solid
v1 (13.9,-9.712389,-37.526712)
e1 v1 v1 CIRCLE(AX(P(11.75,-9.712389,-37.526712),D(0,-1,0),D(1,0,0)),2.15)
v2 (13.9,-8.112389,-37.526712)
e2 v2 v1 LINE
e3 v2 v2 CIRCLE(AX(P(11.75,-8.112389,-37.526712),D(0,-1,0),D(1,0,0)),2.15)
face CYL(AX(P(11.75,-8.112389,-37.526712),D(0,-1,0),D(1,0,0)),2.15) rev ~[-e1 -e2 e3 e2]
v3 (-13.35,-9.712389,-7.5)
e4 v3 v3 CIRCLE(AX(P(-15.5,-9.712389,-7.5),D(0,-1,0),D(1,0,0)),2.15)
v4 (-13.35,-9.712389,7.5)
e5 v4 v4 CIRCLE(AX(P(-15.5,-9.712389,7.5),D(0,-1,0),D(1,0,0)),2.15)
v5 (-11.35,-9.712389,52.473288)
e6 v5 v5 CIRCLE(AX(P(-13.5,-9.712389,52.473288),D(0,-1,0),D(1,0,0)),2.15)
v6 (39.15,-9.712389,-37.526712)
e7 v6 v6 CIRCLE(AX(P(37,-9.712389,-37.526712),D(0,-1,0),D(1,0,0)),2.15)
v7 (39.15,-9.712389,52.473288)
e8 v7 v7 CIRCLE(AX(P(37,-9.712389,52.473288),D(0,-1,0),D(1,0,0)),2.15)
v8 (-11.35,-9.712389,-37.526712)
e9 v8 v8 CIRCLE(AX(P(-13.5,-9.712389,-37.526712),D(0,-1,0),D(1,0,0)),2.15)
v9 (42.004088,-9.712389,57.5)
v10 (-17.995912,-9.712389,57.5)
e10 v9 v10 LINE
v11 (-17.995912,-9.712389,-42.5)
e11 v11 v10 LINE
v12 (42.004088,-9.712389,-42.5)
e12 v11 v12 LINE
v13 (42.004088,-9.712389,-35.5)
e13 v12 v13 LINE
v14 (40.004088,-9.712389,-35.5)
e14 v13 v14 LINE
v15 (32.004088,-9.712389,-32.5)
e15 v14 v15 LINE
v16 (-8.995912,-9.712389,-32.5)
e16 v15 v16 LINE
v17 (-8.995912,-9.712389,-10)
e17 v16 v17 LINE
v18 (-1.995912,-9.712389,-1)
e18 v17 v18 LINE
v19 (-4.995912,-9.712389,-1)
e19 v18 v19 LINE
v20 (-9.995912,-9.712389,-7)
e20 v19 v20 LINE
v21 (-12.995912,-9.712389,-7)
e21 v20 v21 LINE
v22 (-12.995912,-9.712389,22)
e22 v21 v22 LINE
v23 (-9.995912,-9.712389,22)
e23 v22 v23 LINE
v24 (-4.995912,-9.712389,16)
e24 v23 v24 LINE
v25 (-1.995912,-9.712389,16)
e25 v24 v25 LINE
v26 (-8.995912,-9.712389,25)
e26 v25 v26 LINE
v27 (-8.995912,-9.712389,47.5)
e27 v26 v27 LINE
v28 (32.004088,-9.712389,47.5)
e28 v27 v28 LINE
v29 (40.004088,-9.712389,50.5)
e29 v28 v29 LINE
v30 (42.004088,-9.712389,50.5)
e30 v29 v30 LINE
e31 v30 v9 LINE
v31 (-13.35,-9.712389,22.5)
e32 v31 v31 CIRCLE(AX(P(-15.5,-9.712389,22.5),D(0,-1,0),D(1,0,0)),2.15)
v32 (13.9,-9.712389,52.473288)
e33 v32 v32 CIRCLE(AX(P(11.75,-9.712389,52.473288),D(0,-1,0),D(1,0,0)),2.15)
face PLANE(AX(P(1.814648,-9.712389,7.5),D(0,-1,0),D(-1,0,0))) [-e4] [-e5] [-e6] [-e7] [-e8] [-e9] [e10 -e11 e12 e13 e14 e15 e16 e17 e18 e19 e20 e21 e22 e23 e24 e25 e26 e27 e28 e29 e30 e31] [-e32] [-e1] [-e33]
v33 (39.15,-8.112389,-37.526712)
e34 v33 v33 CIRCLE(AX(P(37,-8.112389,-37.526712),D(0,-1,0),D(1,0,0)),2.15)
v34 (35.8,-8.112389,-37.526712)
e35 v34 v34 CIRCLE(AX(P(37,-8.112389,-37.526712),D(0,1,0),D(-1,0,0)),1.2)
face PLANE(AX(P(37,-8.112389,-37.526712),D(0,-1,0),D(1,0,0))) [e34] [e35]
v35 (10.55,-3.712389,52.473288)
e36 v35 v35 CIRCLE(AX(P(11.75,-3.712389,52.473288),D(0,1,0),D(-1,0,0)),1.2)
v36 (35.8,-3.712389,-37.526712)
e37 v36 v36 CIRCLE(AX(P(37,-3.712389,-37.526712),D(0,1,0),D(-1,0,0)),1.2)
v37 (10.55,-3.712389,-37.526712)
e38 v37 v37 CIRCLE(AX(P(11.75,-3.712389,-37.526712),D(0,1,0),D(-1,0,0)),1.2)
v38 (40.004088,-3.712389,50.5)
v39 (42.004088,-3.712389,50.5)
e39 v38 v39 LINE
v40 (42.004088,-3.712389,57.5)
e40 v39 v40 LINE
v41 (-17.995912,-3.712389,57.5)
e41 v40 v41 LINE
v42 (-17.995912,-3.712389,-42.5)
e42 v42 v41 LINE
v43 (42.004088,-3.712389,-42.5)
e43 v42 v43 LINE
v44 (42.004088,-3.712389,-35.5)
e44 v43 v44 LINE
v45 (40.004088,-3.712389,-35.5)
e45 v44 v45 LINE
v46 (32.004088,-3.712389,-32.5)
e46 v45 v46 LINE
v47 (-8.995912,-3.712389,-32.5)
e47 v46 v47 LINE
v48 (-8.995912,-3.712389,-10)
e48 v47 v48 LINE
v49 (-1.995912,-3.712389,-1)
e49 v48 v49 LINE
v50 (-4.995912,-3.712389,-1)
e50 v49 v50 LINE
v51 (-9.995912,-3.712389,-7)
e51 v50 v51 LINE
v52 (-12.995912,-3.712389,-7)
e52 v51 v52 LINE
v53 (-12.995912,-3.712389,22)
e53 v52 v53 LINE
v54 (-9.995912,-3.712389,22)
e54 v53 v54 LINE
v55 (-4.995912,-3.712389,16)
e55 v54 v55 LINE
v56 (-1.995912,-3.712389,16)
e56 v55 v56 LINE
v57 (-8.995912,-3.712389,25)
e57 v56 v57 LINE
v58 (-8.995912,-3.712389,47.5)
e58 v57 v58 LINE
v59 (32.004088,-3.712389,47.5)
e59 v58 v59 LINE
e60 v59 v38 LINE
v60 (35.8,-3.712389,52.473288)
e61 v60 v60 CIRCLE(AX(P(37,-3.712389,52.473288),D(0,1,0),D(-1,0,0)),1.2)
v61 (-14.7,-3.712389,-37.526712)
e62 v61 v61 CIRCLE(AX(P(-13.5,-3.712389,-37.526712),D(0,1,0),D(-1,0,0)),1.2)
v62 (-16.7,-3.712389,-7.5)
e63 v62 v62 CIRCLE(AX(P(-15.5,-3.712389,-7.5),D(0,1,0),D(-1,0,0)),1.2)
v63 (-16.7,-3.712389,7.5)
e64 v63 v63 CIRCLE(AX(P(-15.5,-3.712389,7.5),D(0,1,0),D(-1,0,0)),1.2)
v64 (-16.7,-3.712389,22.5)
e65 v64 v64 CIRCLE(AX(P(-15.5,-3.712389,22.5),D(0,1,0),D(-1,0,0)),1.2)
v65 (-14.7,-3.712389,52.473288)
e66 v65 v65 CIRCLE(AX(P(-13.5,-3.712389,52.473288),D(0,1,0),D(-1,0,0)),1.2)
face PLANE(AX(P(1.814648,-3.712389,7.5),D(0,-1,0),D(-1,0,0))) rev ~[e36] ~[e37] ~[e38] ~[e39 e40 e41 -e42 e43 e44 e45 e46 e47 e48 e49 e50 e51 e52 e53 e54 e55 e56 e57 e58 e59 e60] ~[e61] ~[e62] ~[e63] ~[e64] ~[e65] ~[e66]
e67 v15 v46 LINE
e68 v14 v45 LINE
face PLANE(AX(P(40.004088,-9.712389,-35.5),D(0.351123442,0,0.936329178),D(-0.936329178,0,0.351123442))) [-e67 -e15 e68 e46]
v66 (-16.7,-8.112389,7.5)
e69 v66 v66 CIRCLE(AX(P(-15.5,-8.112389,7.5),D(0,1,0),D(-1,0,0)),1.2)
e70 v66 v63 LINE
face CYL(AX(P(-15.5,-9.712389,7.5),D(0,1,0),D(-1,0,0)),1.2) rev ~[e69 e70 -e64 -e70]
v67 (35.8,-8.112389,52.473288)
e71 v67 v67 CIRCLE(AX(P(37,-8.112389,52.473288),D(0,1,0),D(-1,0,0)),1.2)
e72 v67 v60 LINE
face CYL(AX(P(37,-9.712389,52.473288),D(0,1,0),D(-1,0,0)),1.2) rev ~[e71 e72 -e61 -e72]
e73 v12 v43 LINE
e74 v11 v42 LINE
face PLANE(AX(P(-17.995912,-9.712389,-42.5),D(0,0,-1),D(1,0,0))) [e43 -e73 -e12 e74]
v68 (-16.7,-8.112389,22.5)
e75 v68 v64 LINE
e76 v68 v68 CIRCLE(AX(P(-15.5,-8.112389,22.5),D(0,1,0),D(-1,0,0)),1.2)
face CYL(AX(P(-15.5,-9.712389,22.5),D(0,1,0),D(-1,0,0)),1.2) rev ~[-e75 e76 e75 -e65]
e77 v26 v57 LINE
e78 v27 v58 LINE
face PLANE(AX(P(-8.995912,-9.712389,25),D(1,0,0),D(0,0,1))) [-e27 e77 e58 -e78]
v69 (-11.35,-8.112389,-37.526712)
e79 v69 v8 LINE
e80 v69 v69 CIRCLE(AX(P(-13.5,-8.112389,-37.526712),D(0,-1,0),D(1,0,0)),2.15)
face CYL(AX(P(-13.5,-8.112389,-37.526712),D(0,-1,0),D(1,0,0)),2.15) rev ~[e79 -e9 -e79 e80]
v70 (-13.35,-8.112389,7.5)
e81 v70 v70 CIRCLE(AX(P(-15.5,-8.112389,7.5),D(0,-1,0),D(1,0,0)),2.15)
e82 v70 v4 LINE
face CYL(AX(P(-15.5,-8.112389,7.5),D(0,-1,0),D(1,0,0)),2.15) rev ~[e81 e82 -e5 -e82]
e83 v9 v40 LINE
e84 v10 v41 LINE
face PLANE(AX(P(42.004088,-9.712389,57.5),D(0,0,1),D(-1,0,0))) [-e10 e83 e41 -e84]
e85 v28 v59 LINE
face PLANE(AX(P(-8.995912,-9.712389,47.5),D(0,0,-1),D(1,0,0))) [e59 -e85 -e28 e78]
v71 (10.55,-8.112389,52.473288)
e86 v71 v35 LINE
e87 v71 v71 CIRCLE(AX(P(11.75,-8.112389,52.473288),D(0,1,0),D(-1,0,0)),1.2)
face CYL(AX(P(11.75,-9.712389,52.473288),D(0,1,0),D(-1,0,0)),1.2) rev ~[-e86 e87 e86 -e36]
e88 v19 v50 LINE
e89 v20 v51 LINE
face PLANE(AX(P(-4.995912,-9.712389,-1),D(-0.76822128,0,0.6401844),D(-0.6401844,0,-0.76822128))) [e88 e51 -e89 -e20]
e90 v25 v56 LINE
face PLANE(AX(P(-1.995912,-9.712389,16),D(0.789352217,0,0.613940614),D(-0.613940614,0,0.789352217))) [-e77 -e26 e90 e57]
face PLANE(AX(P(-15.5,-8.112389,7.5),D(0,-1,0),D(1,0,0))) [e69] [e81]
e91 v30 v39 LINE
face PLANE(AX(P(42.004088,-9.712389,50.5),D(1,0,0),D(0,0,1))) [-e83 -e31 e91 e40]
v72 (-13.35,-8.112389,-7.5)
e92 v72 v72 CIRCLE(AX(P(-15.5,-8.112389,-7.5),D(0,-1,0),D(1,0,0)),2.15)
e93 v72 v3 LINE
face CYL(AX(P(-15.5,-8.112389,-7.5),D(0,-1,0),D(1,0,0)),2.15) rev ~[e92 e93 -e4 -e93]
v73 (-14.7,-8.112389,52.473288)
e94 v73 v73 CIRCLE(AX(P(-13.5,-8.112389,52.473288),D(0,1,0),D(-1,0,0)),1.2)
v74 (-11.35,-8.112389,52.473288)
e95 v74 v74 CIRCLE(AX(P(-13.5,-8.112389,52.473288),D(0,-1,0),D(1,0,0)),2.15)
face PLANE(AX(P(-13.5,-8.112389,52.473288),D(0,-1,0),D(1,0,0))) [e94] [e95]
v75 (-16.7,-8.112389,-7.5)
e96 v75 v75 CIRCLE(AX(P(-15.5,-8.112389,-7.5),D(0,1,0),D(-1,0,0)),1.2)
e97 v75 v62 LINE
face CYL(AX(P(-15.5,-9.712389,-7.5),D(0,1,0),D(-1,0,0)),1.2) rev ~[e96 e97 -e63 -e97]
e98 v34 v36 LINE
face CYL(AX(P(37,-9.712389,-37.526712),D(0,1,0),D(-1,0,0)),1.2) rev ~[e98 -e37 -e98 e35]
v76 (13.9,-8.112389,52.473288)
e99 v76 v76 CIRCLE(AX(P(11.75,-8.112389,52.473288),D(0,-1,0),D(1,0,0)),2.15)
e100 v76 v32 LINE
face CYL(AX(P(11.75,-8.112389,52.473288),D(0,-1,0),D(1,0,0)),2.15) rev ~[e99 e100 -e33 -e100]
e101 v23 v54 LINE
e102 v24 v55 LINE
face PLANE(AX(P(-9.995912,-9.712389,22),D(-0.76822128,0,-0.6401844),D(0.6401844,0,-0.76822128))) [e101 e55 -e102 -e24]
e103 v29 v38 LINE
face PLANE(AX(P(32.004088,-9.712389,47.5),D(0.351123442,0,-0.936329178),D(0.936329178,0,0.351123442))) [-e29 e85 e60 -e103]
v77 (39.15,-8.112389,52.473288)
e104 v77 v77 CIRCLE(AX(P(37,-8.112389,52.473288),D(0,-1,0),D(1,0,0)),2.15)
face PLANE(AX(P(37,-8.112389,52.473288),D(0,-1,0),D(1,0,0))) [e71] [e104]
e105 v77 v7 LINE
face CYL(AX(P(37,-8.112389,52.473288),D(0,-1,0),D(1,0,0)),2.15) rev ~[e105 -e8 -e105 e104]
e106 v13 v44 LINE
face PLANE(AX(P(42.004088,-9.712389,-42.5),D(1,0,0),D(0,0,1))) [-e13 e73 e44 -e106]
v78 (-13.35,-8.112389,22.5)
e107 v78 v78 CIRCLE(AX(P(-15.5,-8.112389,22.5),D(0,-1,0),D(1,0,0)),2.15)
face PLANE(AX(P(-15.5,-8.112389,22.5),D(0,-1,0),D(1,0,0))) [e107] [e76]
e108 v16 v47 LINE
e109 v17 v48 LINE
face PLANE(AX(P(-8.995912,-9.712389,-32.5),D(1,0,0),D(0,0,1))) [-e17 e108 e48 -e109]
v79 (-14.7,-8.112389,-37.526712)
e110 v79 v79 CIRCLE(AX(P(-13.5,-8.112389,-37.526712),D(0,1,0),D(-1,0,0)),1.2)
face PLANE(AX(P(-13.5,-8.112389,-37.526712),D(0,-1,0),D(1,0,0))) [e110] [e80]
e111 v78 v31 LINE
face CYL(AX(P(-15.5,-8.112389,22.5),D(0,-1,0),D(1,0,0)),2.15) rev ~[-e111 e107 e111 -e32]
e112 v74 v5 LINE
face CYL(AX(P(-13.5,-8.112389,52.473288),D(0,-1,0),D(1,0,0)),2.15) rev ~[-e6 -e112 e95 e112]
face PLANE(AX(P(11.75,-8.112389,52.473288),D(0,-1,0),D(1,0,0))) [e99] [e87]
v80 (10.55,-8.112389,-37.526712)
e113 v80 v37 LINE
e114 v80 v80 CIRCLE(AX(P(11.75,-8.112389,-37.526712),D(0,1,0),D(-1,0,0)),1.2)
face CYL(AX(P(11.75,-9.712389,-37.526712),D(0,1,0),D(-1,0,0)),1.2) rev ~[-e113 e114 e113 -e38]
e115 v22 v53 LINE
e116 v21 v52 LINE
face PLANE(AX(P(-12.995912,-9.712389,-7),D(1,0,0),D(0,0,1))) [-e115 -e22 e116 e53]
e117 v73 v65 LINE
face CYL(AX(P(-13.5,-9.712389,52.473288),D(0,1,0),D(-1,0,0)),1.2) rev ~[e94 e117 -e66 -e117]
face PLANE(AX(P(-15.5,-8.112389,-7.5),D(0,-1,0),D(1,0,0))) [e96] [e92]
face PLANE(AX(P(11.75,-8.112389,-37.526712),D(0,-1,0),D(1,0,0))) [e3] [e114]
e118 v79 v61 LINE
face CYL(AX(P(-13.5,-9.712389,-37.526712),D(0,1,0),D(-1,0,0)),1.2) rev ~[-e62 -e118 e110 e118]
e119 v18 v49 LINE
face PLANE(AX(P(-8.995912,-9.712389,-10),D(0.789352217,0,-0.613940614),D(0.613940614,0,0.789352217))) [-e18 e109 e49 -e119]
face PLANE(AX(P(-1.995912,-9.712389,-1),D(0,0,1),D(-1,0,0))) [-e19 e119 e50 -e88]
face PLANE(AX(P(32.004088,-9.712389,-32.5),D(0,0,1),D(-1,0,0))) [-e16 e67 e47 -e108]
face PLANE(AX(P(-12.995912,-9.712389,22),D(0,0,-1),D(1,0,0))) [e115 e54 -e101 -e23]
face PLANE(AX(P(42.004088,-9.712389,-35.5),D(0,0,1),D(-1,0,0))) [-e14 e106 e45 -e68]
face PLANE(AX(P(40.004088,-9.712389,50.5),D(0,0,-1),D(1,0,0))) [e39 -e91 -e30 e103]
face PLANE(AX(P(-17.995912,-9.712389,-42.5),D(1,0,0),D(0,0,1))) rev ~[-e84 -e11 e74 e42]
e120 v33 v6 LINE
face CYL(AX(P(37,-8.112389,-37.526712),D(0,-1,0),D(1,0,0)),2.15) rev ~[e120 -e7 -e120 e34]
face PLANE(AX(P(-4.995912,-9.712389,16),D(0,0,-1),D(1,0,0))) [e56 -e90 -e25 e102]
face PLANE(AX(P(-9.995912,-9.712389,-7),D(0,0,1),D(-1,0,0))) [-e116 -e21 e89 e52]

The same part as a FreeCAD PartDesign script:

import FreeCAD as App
import Part
import Sketcher
from FreeCAD import Vector


def add_polygon(sketch, points):
    """Adds a closed chain of lines whose ends are joined by coincident constraints."""
    first, n = sketch.GeometryCount, len(points)
    for a, b in zip(points, points[1:] + points[:1]):
        sketch.addGeometry(Part.LineSegment(App.Vector(*a, 0), App.Vector(*b, 0)), False)
    for i in range(n):
        sketch.addConstraint(Sketcher.Constraint("Coincident", first + i, 2, first + (i + 1) % n, 1))

doc = App.newDocument("Part")
params = doc.addObject("Spreadsheet::Sheet", "Params")
for row, (alias, value) in enumerate([
    ("sketch1_width", "3 mm"),
    ("sketch1_width2", "41 mm"),
    ("sketch1_width3", "2 mm"),
    ("sketch1_width4", "60 mm"),
    ("sketch1_height", "7 mm"),
    ("pad1_length", "6 mm"),
    ("sketch2_diameter", "2.4 mm"),
    ("hole_diameter", "2.4 mm"),
    ("hole_cbore_diameter", "4.3 mm"),
    ("hole_cbore_depth", "1.6 mm"),
    ("sketch3_diameter", "2.4 mm"),
    ("hole2_diameter", "2.4 mm"),
    ("hole2_cbore_diameter", "4.3 mm"),
    ("hole2_cbore_depth", "1.6 mm"),
], start=1):
    params.set(f"A{row}", alias)
    params.set(f"B{row}", "=" + value)
    params.setAlias(f"B{row}", alias)

body = doc.addObject("PartDesign::Body", "Body")

# Sketch on XZ plane
sketch1 = body.newObject("Sketcher::SketchObject", "Sketch")
sketch1.AttachmentSupport = (doc.getObject("XZ_Plane"), [""])
sketch1.MapMode = "FlatFace"
sketch1.AttachmentOffset = App.Placement(Vector(0, 0, 9.712389), App.Rotation())
add_polygon(sketch1, [(-10, -7), (-5, -1), (-2, -1), (-9, -10), (-9, -32.5), (32, -32.5), (40, -35.5), (42, -35.5), (42, -42.5), (-18, -42.5), (-18, 57.5), (42, 57.5), (42, 50.5), (40, 50.5), (32, 47.5), (-9, 47.5), (-9, 25), (-2, 16), (-5, 16), (-10, 22), (-13, 22), (-13, -7)])  # lines 0-21
sketch1.addConstraint([
    Sketcher.Constraint("Horizontal", 1),
    Sketcher.Constraint("Vertical", 3),
    Sketcher.Constraint("Horizontal", 4),
    Sketcher.Constraint("Horizontal", 6),
    Sketcher.Constraint("Vertical", 7),
    Sketcher.Constraint("Horizontal", 8),
    Sketcher.Constraint("Vertical", 9),
    Sketcher.Constraint("Horizontal", 10),
    Sketcher.Constraint("Vertical", 11),
    Sketcher.Constraint("Horizontal", 12),
    Sketcher.Constraint("Horizontal", 14),
    Sketcher.Constraint("Vertical", 15),
    Sketcher.Constraint("Horizontal", 17),
    Sketcher.Constraint("Horizontal", 19),
    Sketcher.Constraint("Vertical", 20),
    Sketcher.Constraint("Horizontal", 21),
    Sketcher.Constraint("Vertical", 7, 2, 10, 2),
    Sketcher.Constraint("Vertical", 5, 2, 12, 2),
    Sketcher.Constraint("Vertical", 4, 2, 13, 2),
    Sketcher.Constraint("Vertical", 3, 2, 14, 2),
    Sketcher.Constraint("Vertical", 1, 2, 16, 2),
    Sketcher.Constraint("Vertical", 0, 2, 17, 2),
    Sketcher.Constraint("Vertical", 18, 2, 21, 2),
    Sketcher.Constraint("Equal", 17, 19),
    Sketcher.Constraint("Equal", 7, 11),
    Sketcher.Constraint("Equal", 3, 15),
    Sketcher.Constraint("Equal", 5, 13),
    Sketcher.Constraint("Equal", 2, 16),
    Sketcher.Constraint("Equal", 0, 18),
    Sketcher.Constraint("DistanceX", 1, 1, 1, 2, 3.0),
    Sketcher.Constraint("DistanceX", 4, 1, 4, 2, 41.0),
    Sketcher.Constraint("DistanceX", 6, 1, 6, 2, 2.0),
    Sketcher.Constraint("DistanceX", 8, 2, 8, 1, 60.0),
    Sketcher.Constraint("DistanceY", 7, 2, 7, 1, 7.0),
    Sketcher.Constraint("DistanceY", 9, 1, 9, 2, 100.0),
    Sketcher.Constraint("DistanceY", 20, 2, 20, 1, 29.0),
    Sketcher.Constraint("DistanceY", 3, 2, 3, 1, 22.5),
    Sketcher.Constraint("DistanceY", 0, 2, -1, 1, 1.0),
    Sketcher.Constraint("DistanceY", 2, 2, -1, 1, 10.0),
    Sketcher.Constraint("DistanceY", -1, 1, 15, 2, 25.0),
    Sketcher.Constraint("DistanceX", 2, 2, 0, 2, 4.0),
    Sketcher.Constraint("DistanceX", 4, 2, 5, 2, 8.0),
    Sketcher.Constraint("DistanceX", 18, 2, 15, 2, 1.0),
    Sketcher.Constraint("DistanceX", 0, 2, -1, 1, 4.995912),
])
sketch1.setExpression("Constraints[51]", "Params.sketch1_width")
sketch1.setExpression("Constraints[52]", "Params.sketch1_width2")
sketch1.setExpression("Constraints[53]", "Params.sketch1_width3")
sketch1.setExpression("Constraints[54]", "Params.sketch1_width4")
sketch1.setExpression("Constraints[55]", "Params.sketch1_height")
pad1 = body.newObject("PartDesign::Pad", "Pad")
pad1.Profile = sketch1
pad1.setExpression("Length", "Params.pad1_length")
pad1.Reversed = True

# Sketch on XZ plane
sketch2 = body.newObject("Sketcher::SketchObject", "Sketch001")
sketch2.AttachmentSupport = (doc.getObject("XZ_Plane"), [""])
sketch2.MapMode = "FlatFace"
sketch2.AttachmentOffset = App.Placement(Vector(0, 0, 9.712389), App.Rotation())
sketch2.addGeometry([
    Part.Circle(Vector(-15.5, 7.5, 0), Vector(0, 0, 1), 1.2),
    Part.Circle(Vector(-15.5, 22.5, 0), Vector(0, 0, 1), 1.2),
    Part.Circle(Vector(-15.5, -7.5, 0), Vector(0, 0, 1), 1.2),
], False)
sketch2.addConstraint([
    Sketcher.Constraint("Equal", 0, 1),
    Sketcher.Constraint("Equal", 1, 2),
    Sketcher.Constraint("Symmetric", 0, 3, 2, 3, -1),
    Sketcher.Constraint("Vertical", 0, 3, 1, 3),
    Sketcher.Constraint("Diameter", 0, 2.4),
    Sketcher.Constraint("DistanceY", 0, 3, 1, 3, 15.0),
    Sketcher.Constraint("DistanceY", 2, 3, 0, 3, 15.0),
    Sketcher.Constraint("DistanceX", 0, 3, -1, 1, 15.5),
])
sketch2.setExpression("Constraints[4]", "Params.sketch2_diameter")
doc.recompute()
hole = body.newObject("PartDesign::Hole", "Hole")
hole.Profile = sketch2
hole.ThreadType = "None"
hole.setExpression("Diameter", "Params.hole_diameter")
hole.DepthType = "ThroughAll"
hole.HoleCutType = "Counterbore"
hole.setExpression("HoleCutDiameter", "Params.hole_cbore_diameter")
hole.setExpression("HoleCutDepth", "Params.hole_cbore_depth")

# Sketch on XZ plane
sketch3 = body.newObject("Sketcher::SketchObject", "Sketch002")
sketch3.AttachmentSupport = (doc.getObject("XZ_Plane"), [""])
sketch3.MapMode = "FlatFace"
sketch3.AttachmentOffset = App.Placement(Vector(0, 0, 9.712389), App.Rotation())
sketch3.addGeometry([
    Part.Circle(Vector(11.8, 52.5, 0), Vector(0, 0, 1), 1.2),  # 0
    Part.Circle(Vector(11.8, -37.5, 0), Vector(0, 0, 1), 1.2),  # 1
    Part.Circle(Vector(-13.5, -37.5, 0), Vector(0, 0, 1), 1.2),  # 2
    Part.Circle(Vector(37, -37.5, 0), Vector(0, 0, 1), 1.2),  # 3
    Part.Circle(Vector(-13.5, 52.5, 0), Vector(0, 0, 1), 1.2),  # 4
    Part.Circle(Vector(37, 52.5, 0), Vector(0, 0, 1), 1.2),  # 5
], False)
sketch3.addConstraint([
    Sketcher.Constraint("Equal", 0, 1),
    Sketcher.Constraint("Equal", 1, 2),
    Sketcher.Constraint("Equal", 2, 3),
    Sketcher.Constraint("Equal", 3, 4),
    Sketcher.Constraint("Equal", 4, 5),
    Sketcher.Constraint("Horizontal", 1, 3, 2, 3),
    Sketcher.Constraint("Horizontal", 2, 3, 3, 3),
    Sketcher.Constraint("Horizontal", 0, 3, 4, 3),
    Sketcher.Constraint("Horizontal", 4, 3, 5, 3),
    Sketcher.Constraint("Vertical", 0, 3, 1, 3),
    Sketcher.Constraint("Vertical", 2, 3, 4, 3),
    Sketcher.Constraint("Vertical", 3, 3, 5, 3),
    Sketcher.Constraint("Diameter", 0, 2.4),
    Sketcher.Constraint("DistanceX", -1, 1, 3, 3, 37.0),
    Sketcher.Constraint("DistanceY", 1, 3, 0, 3, 90.0),
    Sketcher.Constraint("DistanceX", 2, 3, -1, 1, 13.5),
    Sketcher.Constraint("DistanceX", -1, 1, 0, 3, 11.75),
    Sketcher.Constraint("DistanceY", -1, 1, 0, 3, 52.473288),
])
sketch3.setExpression("Constraints[12]", "Params.sketch3_diameter")
doc.recompute()
hole2 = body.newObject("PartDesign::Hole", "Hole001")
hole2.Profile = sketch3
hole2.ThreadType = "None"
hole2.setExpression("Diameter", "Params.hole2_diameter")
hole2.DepthType = "ThroughAll"
hole2.HoleCutType = "Counterbore"
hole2.setExpression("HoleCutDiameter", "Params.hole2_cbore_diameter")
hole2.setExpression("HoleCutDepth", "Params.hole2_cbore_depth")

doc.recompute()
